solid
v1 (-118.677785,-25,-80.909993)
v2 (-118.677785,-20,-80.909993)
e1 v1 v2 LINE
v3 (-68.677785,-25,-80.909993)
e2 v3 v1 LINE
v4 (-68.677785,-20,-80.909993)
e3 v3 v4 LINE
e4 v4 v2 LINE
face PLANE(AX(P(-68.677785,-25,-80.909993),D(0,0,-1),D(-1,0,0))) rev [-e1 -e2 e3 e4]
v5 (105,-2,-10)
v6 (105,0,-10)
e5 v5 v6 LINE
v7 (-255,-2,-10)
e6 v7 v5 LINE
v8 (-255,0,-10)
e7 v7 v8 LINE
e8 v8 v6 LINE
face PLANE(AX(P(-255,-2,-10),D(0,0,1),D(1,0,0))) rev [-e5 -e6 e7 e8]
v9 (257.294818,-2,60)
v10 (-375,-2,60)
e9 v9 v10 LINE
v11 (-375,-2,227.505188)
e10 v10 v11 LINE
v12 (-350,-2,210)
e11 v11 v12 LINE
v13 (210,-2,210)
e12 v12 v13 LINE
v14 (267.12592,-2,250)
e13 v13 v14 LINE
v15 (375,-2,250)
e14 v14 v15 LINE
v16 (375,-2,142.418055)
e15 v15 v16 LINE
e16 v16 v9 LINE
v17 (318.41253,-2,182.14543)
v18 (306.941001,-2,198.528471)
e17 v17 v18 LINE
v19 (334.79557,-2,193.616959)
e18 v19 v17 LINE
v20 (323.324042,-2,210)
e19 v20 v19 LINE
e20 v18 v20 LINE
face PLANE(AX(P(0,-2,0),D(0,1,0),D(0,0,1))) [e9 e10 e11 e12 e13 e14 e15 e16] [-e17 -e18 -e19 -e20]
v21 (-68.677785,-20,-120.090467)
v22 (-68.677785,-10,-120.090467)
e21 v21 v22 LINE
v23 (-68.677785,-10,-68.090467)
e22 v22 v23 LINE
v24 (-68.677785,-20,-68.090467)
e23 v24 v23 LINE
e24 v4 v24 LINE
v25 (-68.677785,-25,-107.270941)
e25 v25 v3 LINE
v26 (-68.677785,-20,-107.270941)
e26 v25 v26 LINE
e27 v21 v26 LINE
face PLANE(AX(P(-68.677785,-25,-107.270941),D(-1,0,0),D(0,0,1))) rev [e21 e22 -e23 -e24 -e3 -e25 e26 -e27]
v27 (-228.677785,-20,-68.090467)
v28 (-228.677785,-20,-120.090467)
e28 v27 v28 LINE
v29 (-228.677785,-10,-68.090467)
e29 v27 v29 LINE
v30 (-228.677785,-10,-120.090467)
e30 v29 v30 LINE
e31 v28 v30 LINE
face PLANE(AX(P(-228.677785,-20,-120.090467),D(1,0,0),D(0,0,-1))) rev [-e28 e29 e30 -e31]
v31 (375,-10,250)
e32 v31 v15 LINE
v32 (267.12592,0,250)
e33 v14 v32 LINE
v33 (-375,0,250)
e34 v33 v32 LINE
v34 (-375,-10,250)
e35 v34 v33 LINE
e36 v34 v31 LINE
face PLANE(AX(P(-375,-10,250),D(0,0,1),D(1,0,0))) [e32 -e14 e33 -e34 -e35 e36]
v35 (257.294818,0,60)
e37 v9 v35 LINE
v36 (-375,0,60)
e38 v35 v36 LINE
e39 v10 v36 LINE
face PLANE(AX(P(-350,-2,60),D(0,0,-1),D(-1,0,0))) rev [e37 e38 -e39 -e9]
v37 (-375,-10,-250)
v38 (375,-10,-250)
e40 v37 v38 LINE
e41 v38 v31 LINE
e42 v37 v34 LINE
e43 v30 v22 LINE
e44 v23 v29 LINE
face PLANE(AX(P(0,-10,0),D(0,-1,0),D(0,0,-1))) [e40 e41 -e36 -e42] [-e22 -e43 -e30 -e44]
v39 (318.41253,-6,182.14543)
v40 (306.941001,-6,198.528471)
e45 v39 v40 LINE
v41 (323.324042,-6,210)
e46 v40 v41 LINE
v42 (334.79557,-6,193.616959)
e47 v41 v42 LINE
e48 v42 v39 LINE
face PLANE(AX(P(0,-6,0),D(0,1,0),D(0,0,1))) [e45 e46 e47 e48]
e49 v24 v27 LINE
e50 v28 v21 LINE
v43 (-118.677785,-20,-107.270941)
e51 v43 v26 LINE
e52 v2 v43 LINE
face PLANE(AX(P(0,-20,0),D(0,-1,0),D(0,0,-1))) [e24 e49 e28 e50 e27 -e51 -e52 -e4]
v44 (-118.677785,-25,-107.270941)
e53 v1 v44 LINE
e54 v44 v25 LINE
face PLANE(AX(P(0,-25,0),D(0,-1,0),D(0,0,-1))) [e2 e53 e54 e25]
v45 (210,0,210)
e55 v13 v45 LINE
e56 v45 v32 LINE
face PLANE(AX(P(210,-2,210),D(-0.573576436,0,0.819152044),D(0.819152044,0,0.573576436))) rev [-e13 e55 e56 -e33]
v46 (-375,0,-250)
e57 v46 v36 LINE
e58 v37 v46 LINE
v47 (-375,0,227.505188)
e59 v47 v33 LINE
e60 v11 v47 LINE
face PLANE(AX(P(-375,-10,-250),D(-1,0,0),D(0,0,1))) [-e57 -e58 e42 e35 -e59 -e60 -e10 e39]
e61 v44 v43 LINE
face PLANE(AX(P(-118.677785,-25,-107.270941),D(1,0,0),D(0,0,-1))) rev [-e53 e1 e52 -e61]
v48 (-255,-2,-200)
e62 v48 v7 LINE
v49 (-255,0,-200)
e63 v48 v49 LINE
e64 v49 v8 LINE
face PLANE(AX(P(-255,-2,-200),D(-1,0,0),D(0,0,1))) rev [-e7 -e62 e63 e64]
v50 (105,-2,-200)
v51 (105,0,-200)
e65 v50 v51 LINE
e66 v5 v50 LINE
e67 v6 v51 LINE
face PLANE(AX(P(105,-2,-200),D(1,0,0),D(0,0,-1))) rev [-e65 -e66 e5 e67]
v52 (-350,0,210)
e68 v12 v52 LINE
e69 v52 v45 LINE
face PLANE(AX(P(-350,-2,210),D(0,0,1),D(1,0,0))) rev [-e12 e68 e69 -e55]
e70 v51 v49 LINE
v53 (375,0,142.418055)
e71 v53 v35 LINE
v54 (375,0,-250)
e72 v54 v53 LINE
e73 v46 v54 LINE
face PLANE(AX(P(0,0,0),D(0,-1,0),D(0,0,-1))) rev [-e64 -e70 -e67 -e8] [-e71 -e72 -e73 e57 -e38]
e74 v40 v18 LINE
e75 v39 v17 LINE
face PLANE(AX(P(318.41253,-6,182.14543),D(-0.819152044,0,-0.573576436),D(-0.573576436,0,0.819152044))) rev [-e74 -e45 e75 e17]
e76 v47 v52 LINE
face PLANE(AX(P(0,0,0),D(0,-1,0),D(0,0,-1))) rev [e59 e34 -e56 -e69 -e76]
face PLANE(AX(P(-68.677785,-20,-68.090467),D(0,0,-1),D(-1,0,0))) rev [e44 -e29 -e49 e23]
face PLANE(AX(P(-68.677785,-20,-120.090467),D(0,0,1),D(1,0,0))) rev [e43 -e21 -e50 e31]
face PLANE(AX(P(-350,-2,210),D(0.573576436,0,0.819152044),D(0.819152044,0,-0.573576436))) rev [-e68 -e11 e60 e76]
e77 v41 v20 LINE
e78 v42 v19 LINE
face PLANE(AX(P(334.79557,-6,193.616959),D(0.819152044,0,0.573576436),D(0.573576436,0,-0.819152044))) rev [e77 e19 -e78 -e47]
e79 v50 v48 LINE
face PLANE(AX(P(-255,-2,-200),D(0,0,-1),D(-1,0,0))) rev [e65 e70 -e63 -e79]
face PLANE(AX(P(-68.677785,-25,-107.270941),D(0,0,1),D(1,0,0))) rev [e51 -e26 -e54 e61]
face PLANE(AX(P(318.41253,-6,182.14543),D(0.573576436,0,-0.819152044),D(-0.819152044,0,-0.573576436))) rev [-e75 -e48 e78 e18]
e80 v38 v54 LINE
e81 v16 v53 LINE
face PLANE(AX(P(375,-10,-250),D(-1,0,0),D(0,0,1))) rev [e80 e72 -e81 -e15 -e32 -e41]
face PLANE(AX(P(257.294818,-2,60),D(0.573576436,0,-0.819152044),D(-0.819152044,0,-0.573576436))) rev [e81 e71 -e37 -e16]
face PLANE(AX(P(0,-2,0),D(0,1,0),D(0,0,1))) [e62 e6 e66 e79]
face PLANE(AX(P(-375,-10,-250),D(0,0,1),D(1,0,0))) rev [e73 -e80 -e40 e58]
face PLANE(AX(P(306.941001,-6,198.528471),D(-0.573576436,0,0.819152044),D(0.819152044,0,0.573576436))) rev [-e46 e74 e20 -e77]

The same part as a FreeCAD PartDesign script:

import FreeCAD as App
import Part
import Sketcher

V = App.Vector
Q = App.Units.Quantity


def add_polygon(sketch, points):
    """Adds a closed chain of lines whose ends are joined by coincident constraints."""
    first, n = sketch.GeometryCount, len(points)
    for a, b in zip(points, points[1:] + points[:1]):
        sketch.addGeometry(Part.LineSegment(App.Vector(*a, 0), App.Vector(*b, 0)), False)
    for i in range(n):
        sketch.addConstraint(Sketcher.Constraint("Coincident", first + i, 2, first + (i + 1) % n, 1))

doc = App.newDocument("Part")
body = doc.addObject("PartDesign::Body", "Body")

sketch1 = doc.addObject("Sketcher::SketchObject", "Sketch")
body.addObject(sketch1)
sketch1.AttachmentSupport = (doc.XZ_Plane, [""])
sketch1.MapMode = "FlatFace"
add_polygon(sketch1, [(-375, -250), (-375, 250), (375, 250), (375, -250)])
sketch1.addConstraint(Sketcher.Constraint("Vertical", 0))
sketch1.addConstraint(Sketcher.Constraint("Horizontal", 1))
sketch1.addConstraint(Sketcher.Constraint("Vertical", 2))
sketch1.addConstraint(Sketcher.Constraint("Horizontal", 3))
sketch1.addConstraint(Sketcher.Constraint("Symmetric", 0, 2, 2, 2, -1, 1))
sketch1.addConstraint(Sketcher.Constraint("DistanceX", 1, 1, 1, 2, 750.0))
sketch1.addConstraint(Sketcher.Constraint("DistanceY", 0, 1, 0, 2, 500.0))
pad1 = doc.addObject("PartDesign::Pad", "Pad")
body.addObject(pad1)
pad1.Profile = sketch1
pad1.Length = 10

sketch2 = doc.addObject("Sketcher::SketchObject", "Sketch001")
body.addObject(sketch2)
sketch2.AttachmentSupport = (doc.XZ_Plane, [""])
sketch2.MapMode = "FlatFace"
add_polygon(sketch2, [(-255, -200), (-255, -10), (105, -10), (105, -200)])
add_polygon(sketch2, [(257, 60), (-375, 60), (-375, 228), (-350, 210), (210, 210), (267, 250), (375, 250), (375, 142)])
sketch2.addConstraint(Sketcher.Constraint("Vertical", 0))
sketch2.addConstraint(Sketcher.Constraint("Horizontal", 1))
sketch2.addConstraint(Sketcher.Constraint("Vertical", 2))
sketch2.addConstraint(Sketcher.Constraint("Horizontal", 3))
sketch2.addConstraint(Sketcher.Constraint("Horizontal", 4))
sketch2.addConstraint(Sketcher.Constraint("Vertical", 5))
sketch2.addConstraint(Sketcher.Constraint("Horizontal", 7))
sketch2.addConstraint(Sketcher.Constraint("Horizontal", 9))
sketch2.addConstraint(Sketcher.Constraint("Vertical", 10))
sketch2.addConstraint(Sketcher.Constraint("Parallel", 8, 11))
sketch2.addConstraint(Sketcher.Constraint("DistanceX", 1, 1, 1, 2, 360.0))
sketch2.addConstraint(Sketcher.Constraint("DistanceX", 7, 1, 7, 2, 560.0))
sketch2.addConstraint(Sketcher.Constraint("DistanceY", 0, 1, 0, 2, 190.0))
sketch2.addConstraint(Sketcher.Constraint("Angle", 6, Q("-35 deg")))
sketch2.addConstraint(Sketcher.Constraint("Angle", 8, Q("35 deg")))
sketch2.addConstraint(Sketcher.Constraint("DistanceX", 0, 2, -1, 1, 255.0))
sketch2.addConstraint(Sketcher.Constraint("DistanceY", 0, 2, -1, 1, 10.0))
sketch2.addConstraint(Sketcher.Constraint("DistanceX", 4, 2, -1, 1, 375.0))
sketch2.addConstraint(Sketcher.Constraint("DistanceY", -1, 1, 4, 2, 60.0))
sketch2.addConstraint(Sketcher.Constraint("DistanceX", 6, 2, -1, 1, 350.0))
sketch2.addConstraint(Sketcher.Constraint("DistanceY", -1, 1, 6, 2, 210.0))
sketch2.addConstraint(Sketcher.Constraint("DistanceY", -1, 1, 8, 2, 250.0))
sketch2.addConstraint(Sketcher.Constraint("DistanceX", -1, 1, 9, 2, 375.0))
sketch2.addConstraint(Sketcher.Constraint("DistanceX", 4, 2, 4, 1, 632.294818))
pocket1 = doc.addObject("PartDesign::Pocket", "Pocket")
body.addObject(pocket1)
pocket1.Profile = sketch2
pocket1.Length = 2
pocket1.Reversed = True

sketch3 = doc.addObject("Sketcher::SketchObject", "Sketch002")
body.addObject(sketch3)
sketch3.AttachmentSupport = (doc.XZ_Plane, [""])
sketch3.MapMode = "FlatFace"
sketch3.AttachmentOffset = App.Placement(V(0, 0, 2), App.Rotation())
add_polygon(sketch3, [(335, 194), (318, 182), (307, 199), (323, 210)])
sketch3.addConstraint(Sketcher.Constraint("Perpendicular", 0, 1))
sketch3.addConstraint(Sketcher.Constraint("Perpendicular", 1, 2))
sketch3.addConstraint(Sketcher.Constraint("Perpendicular", 2, 3))
sketch3.addConstraint(Sketcher.Constraint("Equal", 0, 1))
sketch3.addConstraint(Sketcher.Constraint("Angle", 0, Q("-145 deg")))
sketch3.addConstraint(Sketcher.Constraint("Distance", 0, 20.0))
sketch3.addConstraint(Sketcher.Constraint("DistanceY", -1, 1, 2, 2, 210.0))
sketch3.addConstraint(Sketcher.Constraint("DistanceX", -1, 1, 1, 2, 306.941001))
pocket2 = doc.addObject("PartDesign::Pocket", "Pocket001")
body.addObject(pocket2)
pocket2.Profile = sketch3
pocket2.Length = 4
pocket2.Reversed = True

sketch4 = doc.addObject("Sketcher::SketchObject", "Sketch003")
body.addObject(sketch4)
sketch4.AttachmentSupport = (doc.XZ_Plane, [""])
sketch4.MapMode = "FlatFace"
sketch4.AttachmentOffset = App.Placement(V(0, 0, 10), App.Rotation())
add_polygon(sketch4, [(-119, -81), (-119, -107), (-69, -107), (-69, -81)])
sketch4.addConstraint(Sketcher.Constraint("Vertical", 0))
sketch4.addConstraint(Sketcher.Constraint("Horizontal", 1))
sketch4.addConstraint(Sketcher.Constraint("Vertical", 2))
sketch4.addConstraint(Sketcher.Constraint("Horizontal", 3))
sketch4.addConstraint(Sketcher.Constraint("DistanceX", 1, 1, 1, 2, 50.0))
sketch4.addConstraint(Sketcher.Constraint("DistanceY", 0, 2, 0, 1, 26.360948))
sketch4.addConstraint(Sketcher.Constraint("DistanceY", 0, 2, -1, 1, 107.270941))
sketch4.addConstraint(Sketcher.Constraint("DistanceX", 0, 2, -1, 1, 118.677785))
pad2 = doc.addObject("PartDesign::Pad", "Pad001")
body.addObject(pad2)
pad2.Profile = sketch4
pad2.Length = 15

sketch5 = doc.addObject("Sketcher::SketchObject", "Sketch004")
body.addObject(sketch5)
sketch5.AttachmentSupport = (doc.XZ_Plane, [""])
sketch5.MapMode = "FlatFace"
sketch5.AttachmentOffset = App.Placement(V(0, 0, 10), App.Rotation())
add_polygon(sketch5, [(-229, -68), (-229, -120), (-69, -120), (-69, -68)])
sketch5.addConstraint(Sketcher.Constraint("Vertical", 0))
sketch5.addConstraint(Sketcher.Constraint("Horizontal", 1))
sketch5.addConstraint(Sketcher.Constraint("Vertical", 2))
sketch5.addConstraint(Sketcher.Constraint("Horizontal", 3))
sketch5.addConstraint(Sketcher.Constraint("DistanceX", 1, 1, 1, 2, 160.0))
sketch5.addConstraint(Sketcher.Constraint("DistanceY", 0, 2, 0, 1, 52.0))
sketch5.addConstraint(Sketcher.Constraint("DistanceX", 0, 2, -1, 1, 228.677785))
sketch5.addConstraint(Sketcher.Constraint("DistanceY", 0, 2, -1, 1, 120.090467))
pad3 = doc.addObject("PartDesign::Pad", "Pad002")
body.addObject(pad3)
pad3.Profile = sketch5
pad3.Length = 10

doc.recompute()
